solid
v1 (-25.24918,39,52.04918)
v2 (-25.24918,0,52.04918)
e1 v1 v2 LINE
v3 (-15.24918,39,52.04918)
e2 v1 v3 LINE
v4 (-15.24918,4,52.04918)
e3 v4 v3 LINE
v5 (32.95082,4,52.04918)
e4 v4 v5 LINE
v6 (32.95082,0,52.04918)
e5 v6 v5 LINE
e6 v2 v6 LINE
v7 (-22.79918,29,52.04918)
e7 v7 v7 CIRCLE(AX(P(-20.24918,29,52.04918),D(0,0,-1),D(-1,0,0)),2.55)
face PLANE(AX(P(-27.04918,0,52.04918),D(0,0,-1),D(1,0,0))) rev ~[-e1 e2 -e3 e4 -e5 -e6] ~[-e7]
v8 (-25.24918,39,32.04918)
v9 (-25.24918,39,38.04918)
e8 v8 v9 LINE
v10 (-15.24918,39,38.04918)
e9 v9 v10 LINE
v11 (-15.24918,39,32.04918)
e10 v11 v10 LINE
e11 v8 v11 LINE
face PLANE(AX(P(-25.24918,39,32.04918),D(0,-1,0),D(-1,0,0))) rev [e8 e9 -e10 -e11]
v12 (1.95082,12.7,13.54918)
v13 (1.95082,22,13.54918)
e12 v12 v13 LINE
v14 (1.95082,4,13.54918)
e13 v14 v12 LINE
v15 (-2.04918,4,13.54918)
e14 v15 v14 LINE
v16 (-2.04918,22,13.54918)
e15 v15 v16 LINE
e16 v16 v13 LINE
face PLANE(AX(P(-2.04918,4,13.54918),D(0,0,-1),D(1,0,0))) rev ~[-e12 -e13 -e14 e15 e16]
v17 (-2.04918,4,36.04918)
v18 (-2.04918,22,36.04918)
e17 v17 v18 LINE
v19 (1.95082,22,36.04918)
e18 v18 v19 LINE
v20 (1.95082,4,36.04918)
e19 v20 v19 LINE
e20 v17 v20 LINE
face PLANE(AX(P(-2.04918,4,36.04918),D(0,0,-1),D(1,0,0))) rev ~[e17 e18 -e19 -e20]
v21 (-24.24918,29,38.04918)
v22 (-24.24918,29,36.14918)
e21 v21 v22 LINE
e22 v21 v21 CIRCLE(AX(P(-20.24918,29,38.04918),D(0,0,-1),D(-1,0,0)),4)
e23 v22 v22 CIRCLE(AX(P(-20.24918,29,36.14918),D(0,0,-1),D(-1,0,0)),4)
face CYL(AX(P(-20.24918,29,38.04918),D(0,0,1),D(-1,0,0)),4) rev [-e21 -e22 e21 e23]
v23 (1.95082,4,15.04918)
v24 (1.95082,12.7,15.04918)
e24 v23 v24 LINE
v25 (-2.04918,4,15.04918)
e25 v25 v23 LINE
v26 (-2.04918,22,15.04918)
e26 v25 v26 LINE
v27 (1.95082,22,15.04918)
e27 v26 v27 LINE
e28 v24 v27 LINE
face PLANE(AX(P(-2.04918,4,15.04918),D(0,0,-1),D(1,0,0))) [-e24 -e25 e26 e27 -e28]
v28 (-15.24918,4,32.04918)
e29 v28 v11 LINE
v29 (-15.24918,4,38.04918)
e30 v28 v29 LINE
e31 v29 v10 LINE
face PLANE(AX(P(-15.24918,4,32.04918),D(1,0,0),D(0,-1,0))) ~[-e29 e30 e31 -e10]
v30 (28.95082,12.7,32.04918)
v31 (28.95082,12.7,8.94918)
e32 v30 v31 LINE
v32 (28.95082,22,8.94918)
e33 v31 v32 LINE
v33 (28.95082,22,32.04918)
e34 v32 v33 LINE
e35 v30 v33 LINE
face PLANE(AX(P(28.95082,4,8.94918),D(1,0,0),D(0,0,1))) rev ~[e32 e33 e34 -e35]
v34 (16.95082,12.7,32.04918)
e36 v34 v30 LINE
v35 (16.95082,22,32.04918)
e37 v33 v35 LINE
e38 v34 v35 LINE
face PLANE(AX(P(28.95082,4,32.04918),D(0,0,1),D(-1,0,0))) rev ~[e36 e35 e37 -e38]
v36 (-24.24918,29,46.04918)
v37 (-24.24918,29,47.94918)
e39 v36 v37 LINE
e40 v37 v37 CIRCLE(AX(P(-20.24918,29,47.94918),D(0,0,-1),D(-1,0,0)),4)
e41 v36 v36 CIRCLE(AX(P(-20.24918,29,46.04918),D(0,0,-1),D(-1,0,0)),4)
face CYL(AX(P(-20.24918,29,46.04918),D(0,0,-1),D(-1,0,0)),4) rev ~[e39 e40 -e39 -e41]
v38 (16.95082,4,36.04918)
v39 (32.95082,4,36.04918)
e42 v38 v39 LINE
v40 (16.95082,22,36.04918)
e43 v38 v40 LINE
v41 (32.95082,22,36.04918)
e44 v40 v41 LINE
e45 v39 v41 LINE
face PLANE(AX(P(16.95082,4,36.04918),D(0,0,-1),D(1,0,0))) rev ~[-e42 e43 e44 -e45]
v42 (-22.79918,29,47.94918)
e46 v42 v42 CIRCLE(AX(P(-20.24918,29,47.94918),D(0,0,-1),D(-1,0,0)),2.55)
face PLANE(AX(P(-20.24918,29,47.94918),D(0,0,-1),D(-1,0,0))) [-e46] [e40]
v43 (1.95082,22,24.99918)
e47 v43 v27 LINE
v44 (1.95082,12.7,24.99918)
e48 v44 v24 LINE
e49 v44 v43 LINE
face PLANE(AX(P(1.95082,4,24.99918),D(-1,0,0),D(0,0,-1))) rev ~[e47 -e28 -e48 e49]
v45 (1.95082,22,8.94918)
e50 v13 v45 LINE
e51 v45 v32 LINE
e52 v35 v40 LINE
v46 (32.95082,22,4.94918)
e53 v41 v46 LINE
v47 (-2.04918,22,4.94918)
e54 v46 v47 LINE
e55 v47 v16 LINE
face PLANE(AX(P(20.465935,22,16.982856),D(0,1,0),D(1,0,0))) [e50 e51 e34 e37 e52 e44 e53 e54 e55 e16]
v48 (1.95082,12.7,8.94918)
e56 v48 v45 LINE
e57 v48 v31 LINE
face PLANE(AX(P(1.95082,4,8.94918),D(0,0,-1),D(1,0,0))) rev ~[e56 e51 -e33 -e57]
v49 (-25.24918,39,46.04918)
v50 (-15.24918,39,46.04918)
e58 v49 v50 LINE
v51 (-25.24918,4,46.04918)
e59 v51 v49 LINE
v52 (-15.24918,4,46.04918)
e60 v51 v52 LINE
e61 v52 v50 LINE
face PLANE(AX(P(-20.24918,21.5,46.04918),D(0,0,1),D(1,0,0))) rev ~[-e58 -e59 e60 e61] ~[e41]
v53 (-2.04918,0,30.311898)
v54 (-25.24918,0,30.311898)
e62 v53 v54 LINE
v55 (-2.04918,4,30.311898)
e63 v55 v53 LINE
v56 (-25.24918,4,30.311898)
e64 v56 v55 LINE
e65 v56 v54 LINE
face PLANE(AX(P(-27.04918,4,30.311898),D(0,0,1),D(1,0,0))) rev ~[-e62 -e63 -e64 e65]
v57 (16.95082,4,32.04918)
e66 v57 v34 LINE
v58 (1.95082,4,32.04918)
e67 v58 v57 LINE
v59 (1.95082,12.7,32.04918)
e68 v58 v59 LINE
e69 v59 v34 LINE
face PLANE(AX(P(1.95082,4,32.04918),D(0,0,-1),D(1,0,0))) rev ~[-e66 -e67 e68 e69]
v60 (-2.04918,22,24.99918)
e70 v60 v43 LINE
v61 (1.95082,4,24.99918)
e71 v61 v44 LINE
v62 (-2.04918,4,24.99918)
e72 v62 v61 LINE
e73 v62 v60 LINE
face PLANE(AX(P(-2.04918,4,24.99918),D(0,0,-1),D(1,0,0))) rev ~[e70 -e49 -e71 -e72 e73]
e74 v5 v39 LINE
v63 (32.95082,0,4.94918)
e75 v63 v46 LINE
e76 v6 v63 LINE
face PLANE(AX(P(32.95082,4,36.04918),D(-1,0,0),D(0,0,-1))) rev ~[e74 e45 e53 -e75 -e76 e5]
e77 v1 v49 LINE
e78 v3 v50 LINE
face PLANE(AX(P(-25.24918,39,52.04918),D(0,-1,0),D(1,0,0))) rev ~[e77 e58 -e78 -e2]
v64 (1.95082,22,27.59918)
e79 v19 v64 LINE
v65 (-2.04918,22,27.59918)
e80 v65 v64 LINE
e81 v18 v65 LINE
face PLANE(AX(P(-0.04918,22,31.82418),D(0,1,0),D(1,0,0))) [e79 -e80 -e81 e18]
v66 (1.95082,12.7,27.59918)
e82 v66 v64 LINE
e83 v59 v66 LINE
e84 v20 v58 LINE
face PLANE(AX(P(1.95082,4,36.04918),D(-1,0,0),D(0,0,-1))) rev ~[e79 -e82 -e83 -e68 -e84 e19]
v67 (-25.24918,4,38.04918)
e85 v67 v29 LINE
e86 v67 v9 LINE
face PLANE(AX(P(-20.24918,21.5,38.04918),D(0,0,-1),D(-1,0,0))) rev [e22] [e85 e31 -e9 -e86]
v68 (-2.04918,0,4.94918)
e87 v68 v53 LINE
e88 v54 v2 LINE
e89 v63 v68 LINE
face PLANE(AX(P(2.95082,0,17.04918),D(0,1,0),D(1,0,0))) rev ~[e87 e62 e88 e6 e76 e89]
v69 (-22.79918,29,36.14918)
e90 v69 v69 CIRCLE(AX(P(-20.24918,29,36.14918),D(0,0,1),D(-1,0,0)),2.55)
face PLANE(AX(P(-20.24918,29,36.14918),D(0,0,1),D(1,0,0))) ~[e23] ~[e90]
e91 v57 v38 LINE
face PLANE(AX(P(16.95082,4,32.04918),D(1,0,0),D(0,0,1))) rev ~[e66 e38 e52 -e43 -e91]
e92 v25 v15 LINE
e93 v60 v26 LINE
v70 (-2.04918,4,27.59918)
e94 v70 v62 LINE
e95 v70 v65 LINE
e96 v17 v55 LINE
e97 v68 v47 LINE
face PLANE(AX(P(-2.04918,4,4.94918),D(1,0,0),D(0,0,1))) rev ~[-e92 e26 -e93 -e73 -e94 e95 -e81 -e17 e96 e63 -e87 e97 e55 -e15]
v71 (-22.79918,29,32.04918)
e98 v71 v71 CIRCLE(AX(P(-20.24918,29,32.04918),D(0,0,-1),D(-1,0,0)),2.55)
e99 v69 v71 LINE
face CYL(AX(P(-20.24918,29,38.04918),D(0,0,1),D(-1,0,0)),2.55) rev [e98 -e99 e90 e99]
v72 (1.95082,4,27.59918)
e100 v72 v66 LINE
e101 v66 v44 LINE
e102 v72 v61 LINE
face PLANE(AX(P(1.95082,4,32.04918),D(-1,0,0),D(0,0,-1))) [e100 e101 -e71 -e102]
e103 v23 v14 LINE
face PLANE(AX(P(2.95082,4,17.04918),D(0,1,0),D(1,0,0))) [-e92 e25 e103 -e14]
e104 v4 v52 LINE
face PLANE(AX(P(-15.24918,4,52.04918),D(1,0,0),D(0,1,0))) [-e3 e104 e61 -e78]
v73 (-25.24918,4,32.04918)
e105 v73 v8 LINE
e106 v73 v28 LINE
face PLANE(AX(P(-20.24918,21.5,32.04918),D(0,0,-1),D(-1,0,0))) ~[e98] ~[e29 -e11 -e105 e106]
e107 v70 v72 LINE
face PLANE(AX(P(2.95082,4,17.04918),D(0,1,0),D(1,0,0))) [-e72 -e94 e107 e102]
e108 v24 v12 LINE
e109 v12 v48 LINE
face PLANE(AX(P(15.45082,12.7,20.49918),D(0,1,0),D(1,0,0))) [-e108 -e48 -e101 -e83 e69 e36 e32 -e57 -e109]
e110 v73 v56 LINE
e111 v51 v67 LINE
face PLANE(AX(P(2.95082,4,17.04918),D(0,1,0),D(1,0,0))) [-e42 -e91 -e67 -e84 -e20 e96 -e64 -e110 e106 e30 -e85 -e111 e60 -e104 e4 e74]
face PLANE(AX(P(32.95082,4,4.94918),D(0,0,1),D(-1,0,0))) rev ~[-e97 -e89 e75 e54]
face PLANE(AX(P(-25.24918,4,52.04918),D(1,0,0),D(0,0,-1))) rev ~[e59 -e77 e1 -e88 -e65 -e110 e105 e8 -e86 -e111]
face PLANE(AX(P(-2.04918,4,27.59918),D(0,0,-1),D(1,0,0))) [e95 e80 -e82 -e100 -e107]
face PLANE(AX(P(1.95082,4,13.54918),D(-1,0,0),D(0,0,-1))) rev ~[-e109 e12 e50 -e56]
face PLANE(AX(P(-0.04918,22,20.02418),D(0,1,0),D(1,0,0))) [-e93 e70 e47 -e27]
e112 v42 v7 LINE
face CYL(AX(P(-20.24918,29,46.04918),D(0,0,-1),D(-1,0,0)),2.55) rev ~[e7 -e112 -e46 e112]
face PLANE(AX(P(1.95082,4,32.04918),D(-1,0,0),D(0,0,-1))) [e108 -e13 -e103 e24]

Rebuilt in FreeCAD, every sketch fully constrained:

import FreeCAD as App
import Part
import Sketcher
Q = App.Units.Quantity

doc = App.newDocument("Part")
body = doc.addObject("PartDesign::Body", "Body")

# Sketch on XZ plane
sketch1 = doc.addObject("Sketcher::SketchObject", "Sketch")
body.addObject(sketch1)
sketch1.AttachmentSupport = (doc.XZ_Plane, [""])
sketch1.MapMode = "FlatFace"
sketch1.addGeometry([
    Part.LineSegment(App.Vector(-27.04918, -17.95082, 0), App.Vector(-27.04918, 52.04918, 0)),
    Part.LineSegment(App.Vector(-27.04918, 52.04918, 0), App.Vector(32.95082, 52.04918, 0)),
    Part.LineSegment(App.Vector(32.95082, 52.04918, 0), App.Vector(32.95082, -17.95082, 0)),
    Part.LineSegment(App.Vector(32.95082, -17.95082, 0), App.Vector(-27.04918, -17.95082, 0)),
], False)
sketch1.addConstraint([
    Sketcher.Constraint("Coincident", 0, 2, 1, 1),
    Sketcher.Constraint("Coincident", 1, 2, 2, 1),
    Sketcher.Constraint("Coincident", 2, 2, 3, 1),
    Sketcher.Constraint("Coincident", 3, 2, 0, 1),
    Sketcher.Constraint("Vertical", 0),
    Sketcher.Constraint("Horizontal", 1),
    Sketcher.Constraint("Vertical", 2),
    Sketcher.Constraint("Horizontal", 3),
    Sketcher.Constraint("DistanceX", 1, 1, 1, 2, Q("60 mm")),
    Sketcher.Constraint("DistanceY", 0, 1, 0, 2, Q("70 mm")),
    Sketcher.Constraint("DistanceX", 0, 2, -1, 1, Q("27.04918 mm")),
    Sketcher.Constraint("DistanceY", -1, 1, 0, 2, Q("52.04918 mm")),
])
pad1 = doc.addObject("PartDesign::Pad", "Pad")
body.addObject(pad1)
pad1.Profile = sketch1
pad1.Length = 4
pad1.Reversed = True

# Sketch on XZ plane
sketch2 = doc.addObject("Sketcher::SketchObject", "Sketch001")
body.addObject(sketch2)
sketch2.AttachmentSupport = (doc.XZ_Plane, [""])
sketch2.MapMode = "FlatFace"
sketch2.AttachmentOffset = App.Placement(App.Vector(0, 0, -4), App.Rotation())
sketch2.addGeometry([
    Part.LineSegment(App.Vector(1.95082, 8.94918, 0), App.Vector(1.95082, 32.04918, 0)),
    Part.LineSegment(App.Vector(1.95082, 32.04918, 0), App.Vector(28.95082, 32.04918, 0)),
    Part.LineSegment(App.Vector(28.95082, 32.04918, 0), App.Vector(28.95082, 8.94918, 0)),
    Part.LineSegment(App.Vector(28.95082, 8.94918, 0), App.Vector(1.95082, 8.94918, 0)),
], False)
sketch2.addConstraint([
    Sketcher.Constraint("Coincident", 0, 2, 1, 1),
    Sketcher.Constraint("Coincident", 1, 2, 2, 1),
    Sketcher.Constraint("Coincident", 2, 2, 3, 1),
    Sketcher.Constraint("Coincident", 3, 2, 0, 1),
    Sketcher.Constraint("Vertical", 0),
    Sketcher.Constraint("Horizontal", 1),
    Sketcher.Constraint("Vertical", 2),
    Sketcher.Constraint("Horizontal", 3),
    Sketcher.Constraint("DistanceX", 1, 1, 1, 2, Q("27 mm")),
    Sketcher.Constraint("DistanceY", 0, 1, 0, 2, Q("23.1 mm")),
    Sketcher.Constraint("DistanceX", -1, 1, 0, 2, Q("1.95082 mm")),
    Sketcher.Constraint("DistanceY", -1, 1, 0, 2, Q("32.04918 mm")),
])
pad2 = doc.addObject("PartDesign::Pad", "Pad001")
body.addObject(pad2)
pad2.Profile = sketch2
pad2.Length = 8.7
pad2.Reversed = True

# Sketch on XY plane
sketch3 = doc.addObject("Sketcher::SketchObject", "Sketch002")
body.addObject(sketch3)
sketch3.AttachmentSupport = (doc.XY_Plane, [""])
sketch3.MapMode = "FlatFace"
sketch3.AttachmentOffset = App.Placement(App.Vector(0, 0, 52.04918), App.Rotation())
sketch3.addGeometry([
    Part.LineSegment(App.Vector(-25.24918, 39, 0), App.Vector(-25.24918, 4, 0)),  # 0
    Part.LineSegment(App.Vector(-25.24918, 4, 0), App.Vector(-15.24918, 4, 0)),  # 1
    Part.LineSegment(App.Vector(-15.24918, 4, 0), App.Vector(-15.24918, 39, 0)),  # 2
    Part.LineSegment(App.Vector(-15.24918, 39, 0), App.Vector(-25.24918, 39, 0)),  # 3
    Part.Circle(App.Vector(-20.24918, 29, 0), App.Vector(0, 0, 1), 1.5),  # 4
], False)
sketch3.addConstraint([
    Sketcher.Constraint("Coincident", 0, 2, 1, 1),
    Sketcher.Constraint("Coincident", 1, 2, 2, 1),
    Sketcher.Constraint("Coincident", 2, 2, 3, 1),
    Sketcher.Constraint("Coincident", 3, 2, 0, 1),
    Sketcher.Constraint("Vertical", 0),
    Sketcher.Constraint("Horizontal", 1),
    Sketcher.Constraint("Vertical", 2),
    Sketcher.Constraint("Horizontal", 3),
    Sketcher.Constraint("Diameter", 4, Q("3 mm")),
    Sketcher.Constraint("DistanceX", 1, 1, 1, 2, Q("10 mm")),
    Sketcher.Constraint("DistanceY", 0, 2, 0, 1, Q("35 mm")),
    Sketcher.Constraint("DistanceY", -1, 1, 4, 3, Q("29 mm")),
    Sketcher.Constraint("DistanceY", -1, 1, 0, 2, Q("4 mm")),
    Sketcher.Constraint("DistanceX", 0, 2, 4, 3, Q("5 mm")),
    Sketcher.Constraint("DistanceX", 4, 3, -1, 1, Q("20.24918 mm")),
])
pad3 = doc.addObject("PartDesign::Pad", "Pad002")
body.addObject(pad3)
pad3.Profile = sketch3
pad3.Length = 6
pad3.Reversed = True

# Sketch on XZ plane
sketch4 = doc.addObject("Sketcher::SketchObject", "Sketch003")
body.addObject(sketch4)
sketch4.AttachmentSupport = (doc.XZ_Plane, [""])
sketch4.MapMode = "FlatFace"
sketch4.AttachmentOffset = App.Placement(App.Vector(0, 0, -4), App.Rotation())
sketch4.addGeometry([
    Part.LineSegment(App.Vector(1.95082, 13.54918, 0), App.Vector(1.95082, 8.94918, 0)),  # 0
    Part.LineSegment(App.Vector(1.95082, 8.94918, 0), App.Vector(28.95082, 8.94918, 0)),  # 1
    Part.LineSegment(App.Vector(28.95082, 8.94918, 0), App.Vector(28.95082, 32.04918, 0)),  # 2
    Part.LineSegment(App.Vector(28.95082, 32.04918, 0), App.Vector(16.95082, 32.04918, 0)),  # 3
    Part.LineSegment(App.Vector(16.95082, 32.04918, 0), App.Vector(16.95082, 36.04918, 0)),  # 4
    Part.LineSegment(App.Vector(16.95082, 36.04918, 0), App.Vector(32.95082, 36.04918, 0)),  # 5
    Part.LineSegment(App.Vector(32.95082, 36.04918, 0), App.Vector(32.95082, 4.94918, 0)),  # 6
    Part.LineSegment(App.Vector(32.95082, 4.94918, 0), App.Vector(-2.04918, 4.94918, 0)),  # 7
    Part.LineSegment(App.Vector(-2.04918, 4.94918, 0), App.Vector(-2.04918, 13.54918, 0)),  # 8
    Part.LineSegment(App.Vector(-2.04918, 13.54918, 0), App.Vector(1.95082, 13.54918, 0)),  # 9
    Part.LineSegment(App.Vector(-2.04918, 15.04918, 0), App.Vector(-2.04918, 24.99918, 0)),  # 10
    Part.LineSegment(App.Vector(-2.04918, 24.99918, 0), App.Vector(1.95082, 24.99918, 0)),  # 11
    Part.LineSegment(App.Vector(1.95082, 24.99918, 0), App.Vector(1.95082, 15.04918, 0)),  # 12
    Part.LineSegment(App.Vector(1.95082, 15.04918, 0), App.Vector(-2.04918, 15.04918, 0)),  # 13
    Part.LineSegment(App.Vector(-2.04918, 27.59918, 0), App.Vector(-2.04918, 36.04918, 0)),  # 14
    Part.LineSegment(App.Vector(-2.04918, 36.04918, 0), App.Vector(1.95082, 36.04918, 0)),  # 15
    Part.LineSegment(App.Vector(1.95082, 36.04918, 0), App.Vector(1.95082, 27.59918, 0)),  # 16
    Part.LineSegment(App.Vector(1.95082, 27.59918, 0), App.Vector(-2.04918, 27.59918, 0)),  # 17
], False)
sketch4.addConstraint([
    Sketcher.Constraint("Coincident", 0, 2, 1, 1),
    Sketcher.Constraint("Coincident", 1, 2, 2, 1),
    Sketcher.Constraint("Coincident", 2, 2, 3, 1),
    Sketcher.Constraint("Coincident", 3, 2, 4, 1),
    Sketcher.Constraint("Coincident", 4, 2, 5, 1),
    Sketcher.Constraint("Coincident", 5, 2, 6, 1),
    Sketcher.Constraint("Coincident", 6, 2, 7, 1),
    Sketcher.Constraint("Coincident", 7, 2, 8, 1),
    Sketcher.Constraint("Coincident", 8, 2, 9, 1),
    Sketcher.Constraint("Coincident", 9, 2, 0, 1),
    Sketcher.Constraint("Coincident", 10, 2, 11, 1),
    Sketcher.Constraint("Coincident", 11, 2, 12, 1),
    Sketcher.Constraint("Coincident", 12, 2, 13, 1),
    Sketcher.Constraint("Coincident", 13, 2, 10, 1),
    Sketcher.Constraint("Coincident", 14, 2, 15, 1),
    Sketcher.Constraint("Coincident", 15, 2, 16, 1),
    Sketcher.Constraint("Coincident", 16, 2, 17, 1),
    Sketcher.Constraint("Coincident", 17, 2, 14, 1),
    Sketcher.Constraint("Vertical", 0),
    Sketcher.Constraint("Horizontal", 1),
    Sketcher.Constraint("Vertical", 2),
    Sketcher.Constraint("Horizontal", 3),
    Sketcher.Constraint("Vertical", 4),
    Sketcher.Constraint("Horizontal", 5),
    Sketcher.Constraint("Vertical", 6),
    Sketcher.Constraint("Horizontal", 7),
    Sketcher.Constraint("Vertical", 8),
    Sketcher.Constraint("Horizontal", 9),
    Sketcher.Constraint("Vertical", 10),
    Sketcher.Constraint("Horizontal", 11),
    Sketcher.Constraint("Vertical", 12),
    Sketcher.Constraint("Horizontal", 13),
    Sketcher.Constraint("Vertical", 14),
    Sketcher.Constraint("Horizontal", 15),
    Sketcher.Constraint("Vertical", 16),
    Sketcher.Constraint("Horizontal", 17),
    Sketcher.Constraint("Horizontal", 5, 2, 14, 2),
    Sketcher.Constraint("Vertical", 8, 2, 10, 2),
    Sketcher.Constraint("Vertical", 9, 2, 11, 2),
    Sketcher.Constraint("Vertical", 13, 2, 14, 2),
    Sketcher.Constraint("Vertical", 12, 2, 15, 2),
    Sketcher.Constraint("Equal", 17, 4),
    Sketcher.Constraint("DistanceX", 1, 1, 1, 2, Q("27 mm")),
    Sketcher.Constraint("DistanceX", 3, 2, 3, 1, Q("12 mm")),
    Sketcher.Constraint("DistanceX", 5, 1, 5, 2, Q("16 mm")),
    Sketcher.Constraint("DistanceX", 7, 2, 7, 1, Q("35 mm")),
    Sketcher.Constraint("DistanceY", 0, 2, 0, 1, Q("4.6 mm")),
    Sketcher.Constraint("DistanceY", 2, 1, 2, 2, Q("23.1 mm")),
    Sketcher.Constraint("DistanceY", 6, 2, 6, 1, Q("31.1 mm")),
    Sketcher.Constraint("DistanceY", 13, 2, 14, 2, Q("21 mm")),
    Sketcher.Constraint("DistanceY", 10, 1, 10, 2, Q("9.95 mm")),
    Sketcher.Constraint("DistanceY", 14, 1, 14, 2, Q("8.45 mm")),
    Sketcher.Constraint("DistanceX", -1, 1, 0, 2, Q("1.95082 mm")),
    Sketcher.Constraint("DistanceY", -1, 1, 0, 2, Q("8.94918 mm")),
])
pad4 = doc.addObject("PartDesign::Pad", "Pad003")
body.addObject(pad4)
pad4.Profile = sketch4
pad4.Length = 18
pad4.Reversed = True

# Sketch on XY plane
sketch5 = doc.addObject("Sketcher::SketchObject", "Sketch004")
body.addObject(sketch5)
sketch5.AttachmentSupport = (doc.XY_Plane, [""])
sketch5.MapMode = "FlatFace"
sketch5.AttachmentOffset = App.Placement(App.Vector(0, 0, 46.04918), App.Rotation())
sketch5.addGeometry(Part.Circle(App.Vector(-20.24918, 29, 0), App.Vector(0, 0, 1), 2.55), False)
sketch5.addConstraint([
    Sketcher.Constraint("Diameter", 0, Q("5.1 mm")),
    Sketcher.Constraint("DistanceY", -1, 1, 0, 3, Q("29 mm")),
    Sketcher.Constraint("DistanceX", 0, 3, -1, 1, Q("20.24918 mm")),
])
pocket1 = doc.addObject("PartDesign::Pocket", "Pocket")
body.addObject(pocket1)
pocket1.Profile = sketch5
pocket1.Length = 6
pocket1.Reversed = True

# Sketch on XY plane
sketch6 = doc.addObject("Sketcher::SketchObject", "Sketch005")
body.addObject(sketch6)
sketch6.AttachmentSupport = (doc.XY_Plane, [""])
sketch6.MapMode = "FlatFace"
sketch6.AttachmentOffset = App.Placement(App.Vector(0, 0, 46.04918), App.Rotation())
sketch6.addGeometry(Part.Circle(App.Vector(-20.24918, 29, 0), App.Vector(0, 0, 1), 4), False)
sketch6.addConstraint([
    Sketcher.Constraint("Diameter", 0, Q("8 mm")),
    Sketcher.Constraint("DistanceY", -1, 1, 0, 3, Q("29 mm")),
    Sketcher.Constraint("DistanceX", 0, 3, -1, 1, Q("20.24918 mm")),
])
pocket2 = doc.addObject("PartDesign::Pocket", "Pocket001")
body.addObject(pocket2)
pocket2.Profile = sketch6
pocket2.Length = 1.9
pocket2.Reversed = True
doc.recompute()

datumplane = doc.addObject("PartDesign::Plane", "DatumPlane")
body.addObject(datumplane)
datumplane.AttachmentSupport = (doc.XY_Plane, [""])
datumplane.MapMode = "FlatFace"
datumplane.AttachmentOffset = App.Placement(App.Vector(0, 0, 42.04918), App.Rotation())
mirrored = doc.addObject("PartDesign::Mirrored", "Mirrored")
body.addObject(mirrored)
mirrored.Originals = [pad3, pocket1, pocket2]
mirrored.MirrorPlane = (datumplane, [""])
body.Tip = mirrored

# Sketch on XZ plane
sketch7 = doc.addObject("Sketcher::SketchObject", "Sketch006")
body.addObject(sketch7)
sketch7.AttachmentSupport = (doc.XZ_Plane, [""])
sketch7.MapMode = "FlatFace"
sketch7.AttachmentOffset = App.Placement(App.Vector(0, 0, -4), App.Rotation())
sketch7.addGeometry([
    Part.LineSegment(App.Vector(-2.04918, 4.94918, 0), App.Vector(-27.04918, 4.94918, 0)),
    Part.LineSegment(App.Vector(-27.04918, 4.94918, 0), App.Vector(-27.04918, 30.311898, 0)),
    Part.LineSegment(App.Vector(-27.04918, 30.311898, 0), App.Vector(-2.04918, 30.311898, 0)),
    Part.LineSegment(App.Vector(-2.04918, 30.311898, 0), App.Vector(-2.04918, 4.94918, 0)),
], False)
sketch7.addConstraint([
    Sketcher.Constraint("Coincident", 0, 2, 1, 1),
    Sketcher.Constraint("Coincident", 1, 2, 2, 1),
    Sketcher.Constraint("Coincident", 2, 2, 3, 1),
    Sketcher.Constraint("Coincident", 3, 2, 0, 1),
    Sketcher.Constraint("Horizontal", 0),
    Sketcher.Constraint("Vertical", 1),
    Sketcher.Constraint("Horizontal", 2),
    Sketcher.Constraint("Vertical", 3),
    Sketcher.Constraint("DistanceX", 0, 2, 0, 1, Q("25 mm")),
    Sketcher.Constraint("DistanceY", 1, 1, 1, 2, Q("25.362717 mm")),
    Sketcher.Constraint("DistanceX", 0, 2, -1, 1, Q("27.04918 mm")),
    Sketcher.Constraint("DistanceY", -1, 1, 0, 2, Q("4.94918 mm")),
])
pocket3 = doc.addObject("PartDesign::Pocket", "Pocket002")
body.addObject(pocket3)
pocket3.Profile = sketch7
pocket3.Type = "UpToFirst"
pocket3.Reversed = True

# Sketch on XZ plane
sketch8 = doc.addObject("Sketcher::SketchObject", "Sketch007")
body.addObject(sketch8)
sketch8.AttachmentSupport = (doc.XZ_Plane, [""])
sketch8.MapMode = "FlatFace"
sketch8.AttachmentOffset = App.Placement(App.Vector(0, 0, -4), App.Rotation())
sketch8.addGeometry([
    Part.LineSegment(App.Vector(32.95082, 4.94918, 0), App.Vector(32.95082, -17.95082, 0)),
    Part.LineSegment(App.Vector(32.95082, -17.95082, 0), App.Vector(-27.04918, -17.95082, 0)),
    Part.LineSegment(App.Vector(-27.04918, -17.95082, 0), App.Vector(-27.04918, 4.94918, 0)),
    Part.LineSegment(App.Vector(-27.04918, 4.94918, 0), App.Vector(32.95082, 4.94918, 0)),
], False)
sketch8.addConstraint([
    Sketcher.Constraint("Coincident", 0, 2, 1, 1),
    Sketcher.Constraint("Coincident", 1, 2, 2, 1),
    Sketcher.Constraint("Coincident", 2, 2, 3, 1),
    Sketcher.Constraint("Coincident", 3, 2, 0, 1),
    Sketcher.Constraint("Vertical", 0),
    Sketcher.Constraint("Horizontal", 1),
    Sketcher.Constraint("Vertical", 2),
    Sketcher.Constraint("Horizontal", 3),
    Sketcher.Constraint("DistanceX", 1, 2, 1, 1, Q("60 mm")),
    Sketcher.Constraint("DistanceY", 0, 2, 0, 1, Q("22.9 mm")),
    Sketcher.Constraint("DistanceX", -1, 1, 0, 2, Q("32.95082 mm")),
    Sketcher.Constraint("DistanceY", 0, 2, -1, 1, Q("17.95082 mm")),
])
pocket4 = doc.addObject("PartDesign::Pocket", "Pocket003")
body.addObject(pocket4)
pocket4.Profile = sketch8
pocket4.Type = "UpToFirst"
pocket4.Reversed = True

# Sketch on XZ plane
sketch9 = doc.addObject("Sketcher::SketchObject", "Sketch008")
body.addObject(sketch9)
sketch9.AttachmentSupport = (doc.XZ_Plane, [""])
sketch9.MapMode = "FlatFace"
sketch9.AttachmentOffset = App.Placement(App.Vector(0, 0, -4), App.Rotation())
sketch9.addGeometry([
    Part.LineSegment(App.Vector(-25.24918, 30.311898, 0), App.Vector(-27.04918, 30.311898, 0)),
    Part.LineSegment(App.Vector(-27.04918, 30.311898, 0), App.Vector(-27.04918, 52.04918, 0)),
    Part.LineSegment(App.Vector(-27.04918, 52.04918, 0), App.Vector(-25.24918, 52.04918, 0)),
    Part.LineSegment(App.Vector(-25.24918, 52.04918, 0), App.Vector(-25.24918, 30.311898, 0)),
], False)
sketch9.addConstraint([
    Sketcher.Constraint("Coincident", 0, 2, 1, 1),
    Sketcher.Constraint("Coincident", 1, 2, 2, 1),
    Sketcher.Constraint("Coincident", 2, 2, 3, 1),
    Sketcher.Constraint("Coincident", 3, 2, 0, 1),
    Sketcher.Constraint("Horizontal", 0),
    Sketcher.Constraint("Vertical", 1),
    Sketcher.Constraint("Horizontal", 2),
    Sketcher.Constraint("Vertical", 3),
    Sketcher.Constraint("DistanceX", 0, 2, 0, 1, Q("1.8 mm")),
    Sketcher.Constraint("DistanceY", 1, 1, 1, 2, Q("21.737283 mm")),
    Sketcher.Constraint("DistanceX", 0, 2, -1, 1, Q("27.04918 mm")),
    Sketcher.Constraint("DistanceY", -1, 1, 1, 2, Q("52.04918 mm")),
])
pocket5 = doc.addObject("PartDesign::Pocket", "Pocket004")
body.addObject(pocket5)
pocket5.Profile = sketch9
pocket5.Type = "UpToFirst"
pocket5.Reversed = True

doc.recompute()
